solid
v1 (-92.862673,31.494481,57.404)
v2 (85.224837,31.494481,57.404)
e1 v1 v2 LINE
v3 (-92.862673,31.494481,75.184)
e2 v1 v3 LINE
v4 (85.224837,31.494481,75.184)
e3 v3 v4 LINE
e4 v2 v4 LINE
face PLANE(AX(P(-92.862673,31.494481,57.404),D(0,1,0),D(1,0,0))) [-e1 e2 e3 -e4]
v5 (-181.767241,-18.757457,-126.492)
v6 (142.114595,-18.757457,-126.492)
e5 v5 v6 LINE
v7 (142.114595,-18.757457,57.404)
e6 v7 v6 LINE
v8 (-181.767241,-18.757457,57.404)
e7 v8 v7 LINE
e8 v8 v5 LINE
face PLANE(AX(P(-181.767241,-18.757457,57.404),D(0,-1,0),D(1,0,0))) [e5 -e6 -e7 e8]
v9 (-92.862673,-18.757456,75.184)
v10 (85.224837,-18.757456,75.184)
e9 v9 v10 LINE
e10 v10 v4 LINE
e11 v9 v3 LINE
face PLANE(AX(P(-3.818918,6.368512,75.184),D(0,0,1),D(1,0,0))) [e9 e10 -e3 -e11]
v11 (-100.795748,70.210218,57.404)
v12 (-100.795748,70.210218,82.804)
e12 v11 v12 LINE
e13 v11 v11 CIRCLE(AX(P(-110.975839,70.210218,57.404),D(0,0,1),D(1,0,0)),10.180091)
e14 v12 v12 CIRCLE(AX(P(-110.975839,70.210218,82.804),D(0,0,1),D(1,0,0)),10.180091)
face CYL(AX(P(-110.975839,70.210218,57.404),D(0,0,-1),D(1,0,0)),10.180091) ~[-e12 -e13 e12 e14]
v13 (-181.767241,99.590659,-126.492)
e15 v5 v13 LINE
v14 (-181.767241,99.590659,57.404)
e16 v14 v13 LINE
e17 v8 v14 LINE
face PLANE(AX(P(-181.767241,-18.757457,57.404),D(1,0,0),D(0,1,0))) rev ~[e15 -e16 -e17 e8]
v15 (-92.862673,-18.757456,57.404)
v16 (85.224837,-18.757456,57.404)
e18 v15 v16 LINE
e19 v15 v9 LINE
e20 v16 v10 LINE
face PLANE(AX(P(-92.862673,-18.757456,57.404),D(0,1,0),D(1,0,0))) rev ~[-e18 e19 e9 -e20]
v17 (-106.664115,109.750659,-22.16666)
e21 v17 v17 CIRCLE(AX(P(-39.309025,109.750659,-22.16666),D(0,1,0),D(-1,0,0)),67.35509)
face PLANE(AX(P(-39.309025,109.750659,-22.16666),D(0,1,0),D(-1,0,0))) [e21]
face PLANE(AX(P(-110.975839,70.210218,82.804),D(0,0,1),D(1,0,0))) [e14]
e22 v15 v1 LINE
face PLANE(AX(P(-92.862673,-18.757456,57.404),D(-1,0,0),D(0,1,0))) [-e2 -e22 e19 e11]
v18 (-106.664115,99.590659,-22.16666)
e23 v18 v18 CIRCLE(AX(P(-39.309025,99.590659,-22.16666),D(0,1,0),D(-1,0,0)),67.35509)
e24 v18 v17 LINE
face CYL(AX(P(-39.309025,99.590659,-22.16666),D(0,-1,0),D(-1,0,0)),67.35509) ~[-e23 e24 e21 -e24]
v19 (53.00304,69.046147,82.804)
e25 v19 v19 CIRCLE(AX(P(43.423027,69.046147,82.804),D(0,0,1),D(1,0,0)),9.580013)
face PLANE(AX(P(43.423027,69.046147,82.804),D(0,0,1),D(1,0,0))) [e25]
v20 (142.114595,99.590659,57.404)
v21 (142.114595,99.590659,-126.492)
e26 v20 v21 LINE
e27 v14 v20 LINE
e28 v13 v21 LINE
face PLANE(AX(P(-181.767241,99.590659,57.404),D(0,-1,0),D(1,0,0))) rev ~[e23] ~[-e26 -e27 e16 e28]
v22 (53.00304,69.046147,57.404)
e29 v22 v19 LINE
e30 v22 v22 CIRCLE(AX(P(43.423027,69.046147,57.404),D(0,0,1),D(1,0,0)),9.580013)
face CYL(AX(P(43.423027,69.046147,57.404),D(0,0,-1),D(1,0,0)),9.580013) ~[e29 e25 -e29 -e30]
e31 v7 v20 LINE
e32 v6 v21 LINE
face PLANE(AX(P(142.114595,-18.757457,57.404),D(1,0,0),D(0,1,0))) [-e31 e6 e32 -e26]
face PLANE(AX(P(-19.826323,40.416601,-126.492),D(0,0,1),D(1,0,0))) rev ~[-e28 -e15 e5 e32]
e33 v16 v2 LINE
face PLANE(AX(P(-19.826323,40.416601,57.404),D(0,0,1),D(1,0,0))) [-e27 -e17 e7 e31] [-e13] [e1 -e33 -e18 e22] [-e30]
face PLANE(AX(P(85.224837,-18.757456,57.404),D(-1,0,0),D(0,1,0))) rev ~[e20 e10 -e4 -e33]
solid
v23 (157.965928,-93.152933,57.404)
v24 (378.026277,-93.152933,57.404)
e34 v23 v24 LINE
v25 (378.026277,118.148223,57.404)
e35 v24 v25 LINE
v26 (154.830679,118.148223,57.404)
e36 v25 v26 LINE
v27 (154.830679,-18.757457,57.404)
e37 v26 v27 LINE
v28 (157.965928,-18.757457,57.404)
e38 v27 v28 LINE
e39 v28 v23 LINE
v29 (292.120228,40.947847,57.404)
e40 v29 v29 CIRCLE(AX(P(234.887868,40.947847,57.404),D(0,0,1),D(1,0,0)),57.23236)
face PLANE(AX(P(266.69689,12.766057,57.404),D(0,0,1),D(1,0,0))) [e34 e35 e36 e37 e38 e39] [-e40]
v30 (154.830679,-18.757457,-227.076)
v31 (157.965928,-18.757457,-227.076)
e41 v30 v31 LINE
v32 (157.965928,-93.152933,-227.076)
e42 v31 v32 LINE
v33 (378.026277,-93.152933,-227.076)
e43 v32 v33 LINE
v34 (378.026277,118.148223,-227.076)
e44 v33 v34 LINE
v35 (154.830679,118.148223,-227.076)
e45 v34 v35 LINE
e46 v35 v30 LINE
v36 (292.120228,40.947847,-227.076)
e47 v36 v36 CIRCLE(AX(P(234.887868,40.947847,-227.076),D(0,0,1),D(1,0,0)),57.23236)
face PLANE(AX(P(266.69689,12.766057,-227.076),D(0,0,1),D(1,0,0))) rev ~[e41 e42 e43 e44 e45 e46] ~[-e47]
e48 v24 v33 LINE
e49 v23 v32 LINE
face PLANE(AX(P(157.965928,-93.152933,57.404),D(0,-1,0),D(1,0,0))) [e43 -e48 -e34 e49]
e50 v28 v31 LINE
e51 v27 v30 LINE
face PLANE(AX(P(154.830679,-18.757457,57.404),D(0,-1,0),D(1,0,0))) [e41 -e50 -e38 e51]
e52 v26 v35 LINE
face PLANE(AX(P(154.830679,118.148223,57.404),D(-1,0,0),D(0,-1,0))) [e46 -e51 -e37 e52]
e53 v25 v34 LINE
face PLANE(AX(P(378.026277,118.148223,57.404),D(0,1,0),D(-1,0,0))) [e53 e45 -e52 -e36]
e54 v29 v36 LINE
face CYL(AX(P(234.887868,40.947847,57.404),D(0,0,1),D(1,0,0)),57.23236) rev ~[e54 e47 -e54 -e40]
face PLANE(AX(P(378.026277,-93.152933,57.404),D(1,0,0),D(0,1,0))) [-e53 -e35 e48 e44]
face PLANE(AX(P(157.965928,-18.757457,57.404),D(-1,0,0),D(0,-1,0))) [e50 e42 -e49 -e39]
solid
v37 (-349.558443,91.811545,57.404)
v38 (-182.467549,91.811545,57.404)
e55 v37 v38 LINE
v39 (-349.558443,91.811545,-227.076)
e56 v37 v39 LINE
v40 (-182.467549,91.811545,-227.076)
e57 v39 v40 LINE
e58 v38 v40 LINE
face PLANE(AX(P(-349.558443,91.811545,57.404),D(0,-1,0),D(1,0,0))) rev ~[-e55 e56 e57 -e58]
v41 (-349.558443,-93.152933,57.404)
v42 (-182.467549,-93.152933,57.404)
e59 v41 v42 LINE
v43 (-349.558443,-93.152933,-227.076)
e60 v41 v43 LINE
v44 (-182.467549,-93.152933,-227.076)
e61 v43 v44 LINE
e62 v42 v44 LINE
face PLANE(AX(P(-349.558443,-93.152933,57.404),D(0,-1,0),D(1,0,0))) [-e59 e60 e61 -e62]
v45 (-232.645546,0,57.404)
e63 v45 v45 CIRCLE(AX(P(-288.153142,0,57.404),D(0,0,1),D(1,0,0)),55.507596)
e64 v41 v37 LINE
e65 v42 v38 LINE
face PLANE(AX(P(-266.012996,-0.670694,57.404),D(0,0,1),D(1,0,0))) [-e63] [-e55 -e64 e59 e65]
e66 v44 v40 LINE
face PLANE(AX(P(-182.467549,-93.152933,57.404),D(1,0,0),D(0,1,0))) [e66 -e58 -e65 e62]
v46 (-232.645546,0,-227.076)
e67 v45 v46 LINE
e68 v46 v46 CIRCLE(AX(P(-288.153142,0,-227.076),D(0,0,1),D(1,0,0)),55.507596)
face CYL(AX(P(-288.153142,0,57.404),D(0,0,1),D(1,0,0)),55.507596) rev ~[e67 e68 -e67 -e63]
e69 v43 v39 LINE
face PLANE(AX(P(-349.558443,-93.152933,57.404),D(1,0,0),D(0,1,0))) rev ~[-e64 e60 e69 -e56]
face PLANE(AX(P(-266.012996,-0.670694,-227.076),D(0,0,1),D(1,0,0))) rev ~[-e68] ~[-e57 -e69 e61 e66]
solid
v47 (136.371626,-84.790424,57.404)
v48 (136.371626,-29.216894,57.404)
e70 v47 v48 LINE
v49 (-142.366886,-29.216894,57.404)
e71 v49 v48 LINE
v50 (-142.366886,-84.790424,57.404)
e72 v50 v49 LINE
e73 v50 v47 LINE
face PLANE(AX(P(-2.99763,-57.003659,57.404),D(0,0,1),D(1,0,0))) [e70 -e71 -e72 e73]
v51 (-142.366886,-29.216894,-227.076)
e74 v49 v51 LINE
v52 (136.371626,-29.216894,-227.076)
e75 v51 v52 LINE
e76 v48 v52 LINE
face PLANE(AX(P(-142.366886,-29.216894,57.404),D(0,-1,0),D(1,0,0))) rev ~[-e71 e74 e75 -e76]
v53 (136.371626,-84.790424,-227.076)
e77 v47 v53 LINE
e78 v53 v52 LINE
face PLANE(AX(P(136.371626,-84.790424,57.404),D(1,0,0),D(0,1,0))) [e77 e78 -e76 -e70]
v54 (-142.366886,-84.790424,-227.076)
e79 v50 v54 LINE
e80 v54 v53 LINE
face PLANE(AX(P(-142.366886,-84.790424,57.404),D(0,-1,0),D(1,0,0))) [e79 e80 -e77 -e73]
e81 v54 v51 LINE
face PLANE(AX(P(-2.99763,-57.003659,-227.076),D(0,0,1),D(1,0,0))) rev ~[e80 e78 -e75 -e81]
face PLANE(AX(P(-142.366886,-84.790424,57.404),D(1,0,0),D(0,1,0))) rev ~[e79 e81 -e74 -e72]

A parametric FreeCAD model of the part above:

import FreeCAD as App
import Part
import Sketcher
Q = App.Units.Quantity


def add_polygon(sketch, points):
    """Adds a closed chain of lines whose ends are joined by coincident constraints."""
    first, n = sketch.GeometryCount, len(points)
    for a, b in zip(points, points[1:] + points[:1]):
        sketch.addGeometry(Part.LineSegment(App.Vector(*a, 0), App.Vector(*b, 0)), False)
    for i in range(n):
        sketch.addConstraint(Sketcher.Constraint("Coincident", first + i, 2, first + (i + 1) % n, 1))

doc = App.newDocument("Part")
body = doc.addObject("PartDesign::Body", "Body")

sketch1 = doc.addObject("Sketcher::SketchObject", "Sketch")
body.addObject(sketch1)
sketch1.AttachmentSupport = (doc.XY_Plane, [""])
sketch1.MapMode = "FlatFace"
add_polygon(sketch1, [(-135, 86), (-135, 54), (70, 54), (70, 86)])
sketch1.addConstraint(Sketcher.Constraint("Vertical", 0))
sketch1.addConstraint(Sketcher.Constraint("Horizontal", 1))
sketch1.addConstraint(Sketcher.Constraint("Vertical", 2))
sketch1.addConstraint(Sketcher.Constraint("Horizontal", 3))
sketch1.addConstraint(Sketcher.Constraint("DistanceX", 1, 1, 1, 2, Q("204.554647 mm")))
sketch1.addConstraint(Sketcher.Constraint("DistanceY", 0, 2, 0, 1, Q("31.726852 mm")))
sketch1.addConstraint(Sketcher.Constraint("DistanceX", 0, 2, -1, 1, Q("134.952292 mm")))
sketch1.addConstraint(Sketcher.Constraint("DistanceY", -1, 1, 0, 2, Q("54.199971 mm")))
pad1 = doc.addObject("PartDesign::Pad", "Pad")
body.addObject(pad1)
pad1.Profile = sketch1
pad1.Length = Q("2.26 in")

sketch2 = doc.addObject("Sketcher::SketchObject", "Sketch001")
body.addObject(sketch2)
sketch2.AttachmentSupport = (doc.XY_Plane, [""])
sketch2.MapMode = "FlatFace"
sketch2.AttachmentOffset = App.Placement(App.Vector(0, 0, 2.26 * 25.4), App.Rotation())
sketch2.addGeometry(Part.Circle(App.Vector(-111, 70, 0), App.Vector(0, 0, 1), 10), False)
sketch2.addGeometry(Part.Circle(App.Vector(43, 69, 0), App.Vector(0, 0, 1), 10), False)
sketch2.addConstraint(Sketcher.Constraint("Diameter", 0, Q("20.360182 mm")))
sketch2.addConstraint(Sketcher.Constraint("Diameter", 1, Q("19.160026 mm")))
sketch2.addConstraint(Sketcher.Constraint("DistanceX", 0, 3, -1, 1, Q("110.975839 mm")))
sketch2.addConstraint(Sketcher.Constraint("DistanceY", 1, 3, 0, 3, Q("1.164071 mm")))
sketch2.addConstraint(Sketcher.Constraint("DistanceY", -1, 1, 0, 3, Q("70.210218 mm")))
sketch2.addConstraint(Sketcher.Constraint("DistanceX", -1, 1, 1, 3, Q("43.423027 mm")))
pad2 = doc.addObject("PartDesign::Pad", "Pad001")
body.addObject(pad2)
pad2.Profile = sketch2
pad2.Length = Q("1 in")

sketch3 = doc.addObject("Sketcher::SketchObject", "Sketch002")
body.addObject(sketch3)
sketch3.AttachmentSupport = (doc.XY_Plane, [""])
sketch3.MapMode = "FlatFace"
sketch3.AttachmentOffset = App.Placement(App.Vector(0, 0, 2.26 * 25.4), App.Rotation())
add_polygon(sketch3, [(-182, 100), (-182, -19), (142, -19), (142, 100)])
sketch3.addConstraint(Sketcher.Constraint("Vertical", 0))
sketch3.addConstraint(Sketcher.Constraint("Horizontal", 1))
sketch3.addConstraint(Sketcher.Constraint("Vertical", 2))
sketch3.addConstraint(Sketcher.Constraint("Horizontal", 3))
sketch3.addConstraint(Sketcher.Constraint("DistanceX", 1, 1, 1, 2, Q("323.881835 mm")))
sketch3.addConstraint(Sketcher.Constraint("DistanceY", 0, 2, 0, 1, Q("118.348116 mm")))
sketch3.addConstraint(Sketcher.Constraint("DistanceX", 0, 2, -1, 1, Q("181.767241 mm")))
sketch3.addConstraint(Sketcher.Constraint("DistanceY", -1, 1, 2, 2, Q("99.590659 mm")))
pad3 = doc.addObject("PartDesign::Pad", "Pad002")
body.addObject(pad3)
pad3.Profile = sketch3
pad3.Length = Q("7.24 in")
pad3.Reversed = True

sketch4 = doc.addObject("Sketcher::SketchObject", "Sketch003")
body.addObject(sketch4)
sketch4.AttachmentSupport = (doc.XZ_Plane, [""])
sketch4.MapMode = "FlatFace"
sketch4.AttachmentOffset = App.Placement(App.Vector(0, 0, -99.590659), App.Rotation())
sketch4.addGeometry(Part.Circle(App.Vector(-39, -22, 0), App.Vector(0, 0, 1), 67), False)
sketch4.addConstraint(Sketcher.Constraint("Diameter", 0, Q("134.71018 mm")))
sketch4.addConstraint(Sketcher.Constraint("DistanceY", 0, 3, -1, 1, Q("22.16666 mm")))
sketch4.addConstraint(Sketcher.Constraint("DistanceX", 0, 3, -1, 1, Q("39.309025 mm")))
pad4 = doc.addObject("PartDesign::Pad", "Pad003")
body.addObject(pad4)
pad4.Profile = sketch4
pad4.Length = Q("0.4 in")
pad4.Reversed = True

sketch5 = doc.addObject("Sketcher::SketchObject", "Sketch004")
body.addObject(sketch5)
sketch5.AttachmentSupport = (doc.XY_Plane, [""])
sketch5.MapMode = "FlatFace"
sketch5.AttachmentOffset = App.Placement(App.Vector(0, 0, 2.26 * 25.4), App.Rotation())
add_polygon(sketch5, [(-93, 31), (-93, -19), (85, -19), (85, 31)])
sketch5.addConstraint(Sketcher.Constraint("Vertical", 0))
sketch5.addConstraint(Sketcher.Constraint("Horizontal", 1))
sketch5.addConstraint(Sketcher.Constraint("Vertical", 2))
sketch5.addConstraint(Sketcher.Constraint("Horizontal", 3))
sketch5.addConstraint(Sketcher.Constraint("DistanceX", 1, 1, 1, 2, Q("178.08751 mm")))
sketch5.addConstraint(Sketcher.Constraint("DistanceY", 0, 2, 0, 1, Q("50.251937 mm")))
sketch5.addConstraint(Sketcher.Constraint("DistanceY", -1, 1, 2, 2, Q("31.494481 mm")))
sketch5.addConstraint(Sketcher.Constraint("DistanceX", 0, 2, -1, 1, Q("92.862673 mm")))
pad5 = doc.addObject("PartDesign::Pad", "Pad004")
body.addObject(pad5)
pad5.Profile = sketch5
pad5.Length = Q("0.7 in")
body2 = doc.addObject("PartDesign::Body", "Body001")
body2.AllowCompound = True

sketch6 = doc.addObject("Sketcher::SketchObject", "Sketch005")
body2.addObject(sketch6)
sketch6.AttachmentSupport = (doc.getObject("XY_Plane001"), [""])
sketch6.MapMode = "FlatFace"
sketch6.AttachmentOffset = App.Placement(App.Vector(0, 0, 2.26 * 25.4), App.Rotation())
add_polygon(sketch6, [(-142.4, -29.2), (-142.4, -84.8), (136.4, -84.8), (136.4, -29.2)])
add_polygon(sketch6, [(154.8, 118.1), (154.8, -18.8), (158, -18.8), (158, -93.2), (378, -93.2), (378, 118.1)])
sketch6.addGeometry(Part.Circle(App.Vector(234.9, 40.9, 0), App.Vector(0, 0, 1), 57.2), False)
add_polygon(sketch6, [(-349.6, 91.8), (-349.6, -93.2), (-182.5, -93.2), (-182.5, 91.8)])
sketch6.addGeometry(Part.Circle(App.Vector(-288.2, 0, 0), App.Vector(0, 0, 1), 55.5), False)
sketch6.addConstraint(Sketcher.Constraint("Vertical", 0))
sketch6.addConstraint(Sketcher.Constraint("Horizontal", 1))
sketch6.addConstraint(Sketcher.Constraint("Vertical", 2))
sketch6.addConstraint(Sketcher.Constraint("Horizontal", 3))
sketch6.addConstraint(Sketcher.Constraint("Vertical", 4))
sketch6.addConstraint(Sketcher.Constraint("Horizontal", 5))
sketch6.addConstraint(Sketcher.Constraint("Vertical", 6))
sketch6.addConstraint(Sketcher.Constraint("Horizontal", 7))
sketch6.addConstraint(Sketcher.Constraint("Vertical", 8))
sketch6.addConstraint(Sketcher.Constraint("Horizontal", 9))
sketch6.addConstraint(Sketcher.Constraint("Vertical", 11))
sketch6.addConstraint(Sketcher.Constraint("Horizontal", 12))
sketch6.addConstraint(Sketcher.Constraint("Vertical", 13))
sketch6.addConstraint(Sketcher.Constraint("Horizontal", 14))
sketch6.addConstraint(Sketcher.Constraint("PointOnObject", 15, 3, -1))
sketch6.addConstraint(Sketcher.Constraint("Horizontal", 7, 2, 11, 2))
sketch6.addConstraint(Sketcher.Constraint("Diameter", 10, Q("114.46472 mm")))
sketch6.addConstraint(Sketcher.Constraint("Diameter", 15, Q("111.015192 mm")))
sketch6.addConstraint(Sketcher.Constraint("DistanceX", 5, 1, 5, 2, Q("3.135249 mm")))
sketch6.addConstraint(Sketcher.Constraint("DistanceX", 7, 1, 7, 2, Q("220.060349 mm")))
sketch6.addConstraint(Sketcher.Constraint("DistanceY", 0, 2, 0, 1, Q("55.573529 mm")))
sketch6.addConstraint(Sketcher.Constraint("DistanceY", 4, 2, 4, 1, Q("136.90568 mm")))
sketch6.addConstraint(Sketcher.Constraint("DistanceX", 2, 2, 5, 2, Q("21.594302 mm")))
sketch6.addConstraint(Sketcher.Constraint("DistanceX", 11, 2, 15, 3, Q("61.405301 mm")))
sketch6.addConstraint(Sketcher.Constraint("DistanceX", 1, 1, 1, 2, Q("278.738513 mm")))
sketch6.addConstraint(Sketcher.Constraint("DistanceX", 12, 1, 12, 2, Q("167.090893 mm")))
sketch6.addConstraint(Sketcher.Constraint("DistanceY", 6, 2, 6, 1, Q("74.395476 mm")))
sketch6.addConstraint(Sketcher.Constraint("DistanceY", 11, 2, 11, 1, Q("184.964478 mm")))
sketch6.addConstraint(Sketcher.Constraint("DistanceX", -1, 1, 10, 3, Q("234.887868 mm")))
sketch6.addConstraint(Sketcher.Constraint("DistanceX", 15, 3, -1, 1, Q("288.153142 mm")))
sketch6.addConstraint(Sketcher.Constraint("DistanceX", -1, 1, 4, 2, Q("154.830679 mm")))
sketch6.addConstraint(Sketcher.Constraint("DistanceY", 0, 2, 10, 3, Q("125.73827 mm")))
sketch6.addConstraint(Sketcher.Constraint("DistanceY", 6, 2, 1, 2, Q("8.36251 mm")))
sketch6.addConstraint(Sketcher.Constraint("DistanceY", -1, 1, 10, 3, Q("40.947847 mm")))
pad6 = doc.addObject("PartDesign::Pad", "Pad005")
body2.addObject(pad6)
pad6.Profile = sketch6
pad6.Length = Q("11.2 in")
pad6.Reversed = True

doc.recompute()
